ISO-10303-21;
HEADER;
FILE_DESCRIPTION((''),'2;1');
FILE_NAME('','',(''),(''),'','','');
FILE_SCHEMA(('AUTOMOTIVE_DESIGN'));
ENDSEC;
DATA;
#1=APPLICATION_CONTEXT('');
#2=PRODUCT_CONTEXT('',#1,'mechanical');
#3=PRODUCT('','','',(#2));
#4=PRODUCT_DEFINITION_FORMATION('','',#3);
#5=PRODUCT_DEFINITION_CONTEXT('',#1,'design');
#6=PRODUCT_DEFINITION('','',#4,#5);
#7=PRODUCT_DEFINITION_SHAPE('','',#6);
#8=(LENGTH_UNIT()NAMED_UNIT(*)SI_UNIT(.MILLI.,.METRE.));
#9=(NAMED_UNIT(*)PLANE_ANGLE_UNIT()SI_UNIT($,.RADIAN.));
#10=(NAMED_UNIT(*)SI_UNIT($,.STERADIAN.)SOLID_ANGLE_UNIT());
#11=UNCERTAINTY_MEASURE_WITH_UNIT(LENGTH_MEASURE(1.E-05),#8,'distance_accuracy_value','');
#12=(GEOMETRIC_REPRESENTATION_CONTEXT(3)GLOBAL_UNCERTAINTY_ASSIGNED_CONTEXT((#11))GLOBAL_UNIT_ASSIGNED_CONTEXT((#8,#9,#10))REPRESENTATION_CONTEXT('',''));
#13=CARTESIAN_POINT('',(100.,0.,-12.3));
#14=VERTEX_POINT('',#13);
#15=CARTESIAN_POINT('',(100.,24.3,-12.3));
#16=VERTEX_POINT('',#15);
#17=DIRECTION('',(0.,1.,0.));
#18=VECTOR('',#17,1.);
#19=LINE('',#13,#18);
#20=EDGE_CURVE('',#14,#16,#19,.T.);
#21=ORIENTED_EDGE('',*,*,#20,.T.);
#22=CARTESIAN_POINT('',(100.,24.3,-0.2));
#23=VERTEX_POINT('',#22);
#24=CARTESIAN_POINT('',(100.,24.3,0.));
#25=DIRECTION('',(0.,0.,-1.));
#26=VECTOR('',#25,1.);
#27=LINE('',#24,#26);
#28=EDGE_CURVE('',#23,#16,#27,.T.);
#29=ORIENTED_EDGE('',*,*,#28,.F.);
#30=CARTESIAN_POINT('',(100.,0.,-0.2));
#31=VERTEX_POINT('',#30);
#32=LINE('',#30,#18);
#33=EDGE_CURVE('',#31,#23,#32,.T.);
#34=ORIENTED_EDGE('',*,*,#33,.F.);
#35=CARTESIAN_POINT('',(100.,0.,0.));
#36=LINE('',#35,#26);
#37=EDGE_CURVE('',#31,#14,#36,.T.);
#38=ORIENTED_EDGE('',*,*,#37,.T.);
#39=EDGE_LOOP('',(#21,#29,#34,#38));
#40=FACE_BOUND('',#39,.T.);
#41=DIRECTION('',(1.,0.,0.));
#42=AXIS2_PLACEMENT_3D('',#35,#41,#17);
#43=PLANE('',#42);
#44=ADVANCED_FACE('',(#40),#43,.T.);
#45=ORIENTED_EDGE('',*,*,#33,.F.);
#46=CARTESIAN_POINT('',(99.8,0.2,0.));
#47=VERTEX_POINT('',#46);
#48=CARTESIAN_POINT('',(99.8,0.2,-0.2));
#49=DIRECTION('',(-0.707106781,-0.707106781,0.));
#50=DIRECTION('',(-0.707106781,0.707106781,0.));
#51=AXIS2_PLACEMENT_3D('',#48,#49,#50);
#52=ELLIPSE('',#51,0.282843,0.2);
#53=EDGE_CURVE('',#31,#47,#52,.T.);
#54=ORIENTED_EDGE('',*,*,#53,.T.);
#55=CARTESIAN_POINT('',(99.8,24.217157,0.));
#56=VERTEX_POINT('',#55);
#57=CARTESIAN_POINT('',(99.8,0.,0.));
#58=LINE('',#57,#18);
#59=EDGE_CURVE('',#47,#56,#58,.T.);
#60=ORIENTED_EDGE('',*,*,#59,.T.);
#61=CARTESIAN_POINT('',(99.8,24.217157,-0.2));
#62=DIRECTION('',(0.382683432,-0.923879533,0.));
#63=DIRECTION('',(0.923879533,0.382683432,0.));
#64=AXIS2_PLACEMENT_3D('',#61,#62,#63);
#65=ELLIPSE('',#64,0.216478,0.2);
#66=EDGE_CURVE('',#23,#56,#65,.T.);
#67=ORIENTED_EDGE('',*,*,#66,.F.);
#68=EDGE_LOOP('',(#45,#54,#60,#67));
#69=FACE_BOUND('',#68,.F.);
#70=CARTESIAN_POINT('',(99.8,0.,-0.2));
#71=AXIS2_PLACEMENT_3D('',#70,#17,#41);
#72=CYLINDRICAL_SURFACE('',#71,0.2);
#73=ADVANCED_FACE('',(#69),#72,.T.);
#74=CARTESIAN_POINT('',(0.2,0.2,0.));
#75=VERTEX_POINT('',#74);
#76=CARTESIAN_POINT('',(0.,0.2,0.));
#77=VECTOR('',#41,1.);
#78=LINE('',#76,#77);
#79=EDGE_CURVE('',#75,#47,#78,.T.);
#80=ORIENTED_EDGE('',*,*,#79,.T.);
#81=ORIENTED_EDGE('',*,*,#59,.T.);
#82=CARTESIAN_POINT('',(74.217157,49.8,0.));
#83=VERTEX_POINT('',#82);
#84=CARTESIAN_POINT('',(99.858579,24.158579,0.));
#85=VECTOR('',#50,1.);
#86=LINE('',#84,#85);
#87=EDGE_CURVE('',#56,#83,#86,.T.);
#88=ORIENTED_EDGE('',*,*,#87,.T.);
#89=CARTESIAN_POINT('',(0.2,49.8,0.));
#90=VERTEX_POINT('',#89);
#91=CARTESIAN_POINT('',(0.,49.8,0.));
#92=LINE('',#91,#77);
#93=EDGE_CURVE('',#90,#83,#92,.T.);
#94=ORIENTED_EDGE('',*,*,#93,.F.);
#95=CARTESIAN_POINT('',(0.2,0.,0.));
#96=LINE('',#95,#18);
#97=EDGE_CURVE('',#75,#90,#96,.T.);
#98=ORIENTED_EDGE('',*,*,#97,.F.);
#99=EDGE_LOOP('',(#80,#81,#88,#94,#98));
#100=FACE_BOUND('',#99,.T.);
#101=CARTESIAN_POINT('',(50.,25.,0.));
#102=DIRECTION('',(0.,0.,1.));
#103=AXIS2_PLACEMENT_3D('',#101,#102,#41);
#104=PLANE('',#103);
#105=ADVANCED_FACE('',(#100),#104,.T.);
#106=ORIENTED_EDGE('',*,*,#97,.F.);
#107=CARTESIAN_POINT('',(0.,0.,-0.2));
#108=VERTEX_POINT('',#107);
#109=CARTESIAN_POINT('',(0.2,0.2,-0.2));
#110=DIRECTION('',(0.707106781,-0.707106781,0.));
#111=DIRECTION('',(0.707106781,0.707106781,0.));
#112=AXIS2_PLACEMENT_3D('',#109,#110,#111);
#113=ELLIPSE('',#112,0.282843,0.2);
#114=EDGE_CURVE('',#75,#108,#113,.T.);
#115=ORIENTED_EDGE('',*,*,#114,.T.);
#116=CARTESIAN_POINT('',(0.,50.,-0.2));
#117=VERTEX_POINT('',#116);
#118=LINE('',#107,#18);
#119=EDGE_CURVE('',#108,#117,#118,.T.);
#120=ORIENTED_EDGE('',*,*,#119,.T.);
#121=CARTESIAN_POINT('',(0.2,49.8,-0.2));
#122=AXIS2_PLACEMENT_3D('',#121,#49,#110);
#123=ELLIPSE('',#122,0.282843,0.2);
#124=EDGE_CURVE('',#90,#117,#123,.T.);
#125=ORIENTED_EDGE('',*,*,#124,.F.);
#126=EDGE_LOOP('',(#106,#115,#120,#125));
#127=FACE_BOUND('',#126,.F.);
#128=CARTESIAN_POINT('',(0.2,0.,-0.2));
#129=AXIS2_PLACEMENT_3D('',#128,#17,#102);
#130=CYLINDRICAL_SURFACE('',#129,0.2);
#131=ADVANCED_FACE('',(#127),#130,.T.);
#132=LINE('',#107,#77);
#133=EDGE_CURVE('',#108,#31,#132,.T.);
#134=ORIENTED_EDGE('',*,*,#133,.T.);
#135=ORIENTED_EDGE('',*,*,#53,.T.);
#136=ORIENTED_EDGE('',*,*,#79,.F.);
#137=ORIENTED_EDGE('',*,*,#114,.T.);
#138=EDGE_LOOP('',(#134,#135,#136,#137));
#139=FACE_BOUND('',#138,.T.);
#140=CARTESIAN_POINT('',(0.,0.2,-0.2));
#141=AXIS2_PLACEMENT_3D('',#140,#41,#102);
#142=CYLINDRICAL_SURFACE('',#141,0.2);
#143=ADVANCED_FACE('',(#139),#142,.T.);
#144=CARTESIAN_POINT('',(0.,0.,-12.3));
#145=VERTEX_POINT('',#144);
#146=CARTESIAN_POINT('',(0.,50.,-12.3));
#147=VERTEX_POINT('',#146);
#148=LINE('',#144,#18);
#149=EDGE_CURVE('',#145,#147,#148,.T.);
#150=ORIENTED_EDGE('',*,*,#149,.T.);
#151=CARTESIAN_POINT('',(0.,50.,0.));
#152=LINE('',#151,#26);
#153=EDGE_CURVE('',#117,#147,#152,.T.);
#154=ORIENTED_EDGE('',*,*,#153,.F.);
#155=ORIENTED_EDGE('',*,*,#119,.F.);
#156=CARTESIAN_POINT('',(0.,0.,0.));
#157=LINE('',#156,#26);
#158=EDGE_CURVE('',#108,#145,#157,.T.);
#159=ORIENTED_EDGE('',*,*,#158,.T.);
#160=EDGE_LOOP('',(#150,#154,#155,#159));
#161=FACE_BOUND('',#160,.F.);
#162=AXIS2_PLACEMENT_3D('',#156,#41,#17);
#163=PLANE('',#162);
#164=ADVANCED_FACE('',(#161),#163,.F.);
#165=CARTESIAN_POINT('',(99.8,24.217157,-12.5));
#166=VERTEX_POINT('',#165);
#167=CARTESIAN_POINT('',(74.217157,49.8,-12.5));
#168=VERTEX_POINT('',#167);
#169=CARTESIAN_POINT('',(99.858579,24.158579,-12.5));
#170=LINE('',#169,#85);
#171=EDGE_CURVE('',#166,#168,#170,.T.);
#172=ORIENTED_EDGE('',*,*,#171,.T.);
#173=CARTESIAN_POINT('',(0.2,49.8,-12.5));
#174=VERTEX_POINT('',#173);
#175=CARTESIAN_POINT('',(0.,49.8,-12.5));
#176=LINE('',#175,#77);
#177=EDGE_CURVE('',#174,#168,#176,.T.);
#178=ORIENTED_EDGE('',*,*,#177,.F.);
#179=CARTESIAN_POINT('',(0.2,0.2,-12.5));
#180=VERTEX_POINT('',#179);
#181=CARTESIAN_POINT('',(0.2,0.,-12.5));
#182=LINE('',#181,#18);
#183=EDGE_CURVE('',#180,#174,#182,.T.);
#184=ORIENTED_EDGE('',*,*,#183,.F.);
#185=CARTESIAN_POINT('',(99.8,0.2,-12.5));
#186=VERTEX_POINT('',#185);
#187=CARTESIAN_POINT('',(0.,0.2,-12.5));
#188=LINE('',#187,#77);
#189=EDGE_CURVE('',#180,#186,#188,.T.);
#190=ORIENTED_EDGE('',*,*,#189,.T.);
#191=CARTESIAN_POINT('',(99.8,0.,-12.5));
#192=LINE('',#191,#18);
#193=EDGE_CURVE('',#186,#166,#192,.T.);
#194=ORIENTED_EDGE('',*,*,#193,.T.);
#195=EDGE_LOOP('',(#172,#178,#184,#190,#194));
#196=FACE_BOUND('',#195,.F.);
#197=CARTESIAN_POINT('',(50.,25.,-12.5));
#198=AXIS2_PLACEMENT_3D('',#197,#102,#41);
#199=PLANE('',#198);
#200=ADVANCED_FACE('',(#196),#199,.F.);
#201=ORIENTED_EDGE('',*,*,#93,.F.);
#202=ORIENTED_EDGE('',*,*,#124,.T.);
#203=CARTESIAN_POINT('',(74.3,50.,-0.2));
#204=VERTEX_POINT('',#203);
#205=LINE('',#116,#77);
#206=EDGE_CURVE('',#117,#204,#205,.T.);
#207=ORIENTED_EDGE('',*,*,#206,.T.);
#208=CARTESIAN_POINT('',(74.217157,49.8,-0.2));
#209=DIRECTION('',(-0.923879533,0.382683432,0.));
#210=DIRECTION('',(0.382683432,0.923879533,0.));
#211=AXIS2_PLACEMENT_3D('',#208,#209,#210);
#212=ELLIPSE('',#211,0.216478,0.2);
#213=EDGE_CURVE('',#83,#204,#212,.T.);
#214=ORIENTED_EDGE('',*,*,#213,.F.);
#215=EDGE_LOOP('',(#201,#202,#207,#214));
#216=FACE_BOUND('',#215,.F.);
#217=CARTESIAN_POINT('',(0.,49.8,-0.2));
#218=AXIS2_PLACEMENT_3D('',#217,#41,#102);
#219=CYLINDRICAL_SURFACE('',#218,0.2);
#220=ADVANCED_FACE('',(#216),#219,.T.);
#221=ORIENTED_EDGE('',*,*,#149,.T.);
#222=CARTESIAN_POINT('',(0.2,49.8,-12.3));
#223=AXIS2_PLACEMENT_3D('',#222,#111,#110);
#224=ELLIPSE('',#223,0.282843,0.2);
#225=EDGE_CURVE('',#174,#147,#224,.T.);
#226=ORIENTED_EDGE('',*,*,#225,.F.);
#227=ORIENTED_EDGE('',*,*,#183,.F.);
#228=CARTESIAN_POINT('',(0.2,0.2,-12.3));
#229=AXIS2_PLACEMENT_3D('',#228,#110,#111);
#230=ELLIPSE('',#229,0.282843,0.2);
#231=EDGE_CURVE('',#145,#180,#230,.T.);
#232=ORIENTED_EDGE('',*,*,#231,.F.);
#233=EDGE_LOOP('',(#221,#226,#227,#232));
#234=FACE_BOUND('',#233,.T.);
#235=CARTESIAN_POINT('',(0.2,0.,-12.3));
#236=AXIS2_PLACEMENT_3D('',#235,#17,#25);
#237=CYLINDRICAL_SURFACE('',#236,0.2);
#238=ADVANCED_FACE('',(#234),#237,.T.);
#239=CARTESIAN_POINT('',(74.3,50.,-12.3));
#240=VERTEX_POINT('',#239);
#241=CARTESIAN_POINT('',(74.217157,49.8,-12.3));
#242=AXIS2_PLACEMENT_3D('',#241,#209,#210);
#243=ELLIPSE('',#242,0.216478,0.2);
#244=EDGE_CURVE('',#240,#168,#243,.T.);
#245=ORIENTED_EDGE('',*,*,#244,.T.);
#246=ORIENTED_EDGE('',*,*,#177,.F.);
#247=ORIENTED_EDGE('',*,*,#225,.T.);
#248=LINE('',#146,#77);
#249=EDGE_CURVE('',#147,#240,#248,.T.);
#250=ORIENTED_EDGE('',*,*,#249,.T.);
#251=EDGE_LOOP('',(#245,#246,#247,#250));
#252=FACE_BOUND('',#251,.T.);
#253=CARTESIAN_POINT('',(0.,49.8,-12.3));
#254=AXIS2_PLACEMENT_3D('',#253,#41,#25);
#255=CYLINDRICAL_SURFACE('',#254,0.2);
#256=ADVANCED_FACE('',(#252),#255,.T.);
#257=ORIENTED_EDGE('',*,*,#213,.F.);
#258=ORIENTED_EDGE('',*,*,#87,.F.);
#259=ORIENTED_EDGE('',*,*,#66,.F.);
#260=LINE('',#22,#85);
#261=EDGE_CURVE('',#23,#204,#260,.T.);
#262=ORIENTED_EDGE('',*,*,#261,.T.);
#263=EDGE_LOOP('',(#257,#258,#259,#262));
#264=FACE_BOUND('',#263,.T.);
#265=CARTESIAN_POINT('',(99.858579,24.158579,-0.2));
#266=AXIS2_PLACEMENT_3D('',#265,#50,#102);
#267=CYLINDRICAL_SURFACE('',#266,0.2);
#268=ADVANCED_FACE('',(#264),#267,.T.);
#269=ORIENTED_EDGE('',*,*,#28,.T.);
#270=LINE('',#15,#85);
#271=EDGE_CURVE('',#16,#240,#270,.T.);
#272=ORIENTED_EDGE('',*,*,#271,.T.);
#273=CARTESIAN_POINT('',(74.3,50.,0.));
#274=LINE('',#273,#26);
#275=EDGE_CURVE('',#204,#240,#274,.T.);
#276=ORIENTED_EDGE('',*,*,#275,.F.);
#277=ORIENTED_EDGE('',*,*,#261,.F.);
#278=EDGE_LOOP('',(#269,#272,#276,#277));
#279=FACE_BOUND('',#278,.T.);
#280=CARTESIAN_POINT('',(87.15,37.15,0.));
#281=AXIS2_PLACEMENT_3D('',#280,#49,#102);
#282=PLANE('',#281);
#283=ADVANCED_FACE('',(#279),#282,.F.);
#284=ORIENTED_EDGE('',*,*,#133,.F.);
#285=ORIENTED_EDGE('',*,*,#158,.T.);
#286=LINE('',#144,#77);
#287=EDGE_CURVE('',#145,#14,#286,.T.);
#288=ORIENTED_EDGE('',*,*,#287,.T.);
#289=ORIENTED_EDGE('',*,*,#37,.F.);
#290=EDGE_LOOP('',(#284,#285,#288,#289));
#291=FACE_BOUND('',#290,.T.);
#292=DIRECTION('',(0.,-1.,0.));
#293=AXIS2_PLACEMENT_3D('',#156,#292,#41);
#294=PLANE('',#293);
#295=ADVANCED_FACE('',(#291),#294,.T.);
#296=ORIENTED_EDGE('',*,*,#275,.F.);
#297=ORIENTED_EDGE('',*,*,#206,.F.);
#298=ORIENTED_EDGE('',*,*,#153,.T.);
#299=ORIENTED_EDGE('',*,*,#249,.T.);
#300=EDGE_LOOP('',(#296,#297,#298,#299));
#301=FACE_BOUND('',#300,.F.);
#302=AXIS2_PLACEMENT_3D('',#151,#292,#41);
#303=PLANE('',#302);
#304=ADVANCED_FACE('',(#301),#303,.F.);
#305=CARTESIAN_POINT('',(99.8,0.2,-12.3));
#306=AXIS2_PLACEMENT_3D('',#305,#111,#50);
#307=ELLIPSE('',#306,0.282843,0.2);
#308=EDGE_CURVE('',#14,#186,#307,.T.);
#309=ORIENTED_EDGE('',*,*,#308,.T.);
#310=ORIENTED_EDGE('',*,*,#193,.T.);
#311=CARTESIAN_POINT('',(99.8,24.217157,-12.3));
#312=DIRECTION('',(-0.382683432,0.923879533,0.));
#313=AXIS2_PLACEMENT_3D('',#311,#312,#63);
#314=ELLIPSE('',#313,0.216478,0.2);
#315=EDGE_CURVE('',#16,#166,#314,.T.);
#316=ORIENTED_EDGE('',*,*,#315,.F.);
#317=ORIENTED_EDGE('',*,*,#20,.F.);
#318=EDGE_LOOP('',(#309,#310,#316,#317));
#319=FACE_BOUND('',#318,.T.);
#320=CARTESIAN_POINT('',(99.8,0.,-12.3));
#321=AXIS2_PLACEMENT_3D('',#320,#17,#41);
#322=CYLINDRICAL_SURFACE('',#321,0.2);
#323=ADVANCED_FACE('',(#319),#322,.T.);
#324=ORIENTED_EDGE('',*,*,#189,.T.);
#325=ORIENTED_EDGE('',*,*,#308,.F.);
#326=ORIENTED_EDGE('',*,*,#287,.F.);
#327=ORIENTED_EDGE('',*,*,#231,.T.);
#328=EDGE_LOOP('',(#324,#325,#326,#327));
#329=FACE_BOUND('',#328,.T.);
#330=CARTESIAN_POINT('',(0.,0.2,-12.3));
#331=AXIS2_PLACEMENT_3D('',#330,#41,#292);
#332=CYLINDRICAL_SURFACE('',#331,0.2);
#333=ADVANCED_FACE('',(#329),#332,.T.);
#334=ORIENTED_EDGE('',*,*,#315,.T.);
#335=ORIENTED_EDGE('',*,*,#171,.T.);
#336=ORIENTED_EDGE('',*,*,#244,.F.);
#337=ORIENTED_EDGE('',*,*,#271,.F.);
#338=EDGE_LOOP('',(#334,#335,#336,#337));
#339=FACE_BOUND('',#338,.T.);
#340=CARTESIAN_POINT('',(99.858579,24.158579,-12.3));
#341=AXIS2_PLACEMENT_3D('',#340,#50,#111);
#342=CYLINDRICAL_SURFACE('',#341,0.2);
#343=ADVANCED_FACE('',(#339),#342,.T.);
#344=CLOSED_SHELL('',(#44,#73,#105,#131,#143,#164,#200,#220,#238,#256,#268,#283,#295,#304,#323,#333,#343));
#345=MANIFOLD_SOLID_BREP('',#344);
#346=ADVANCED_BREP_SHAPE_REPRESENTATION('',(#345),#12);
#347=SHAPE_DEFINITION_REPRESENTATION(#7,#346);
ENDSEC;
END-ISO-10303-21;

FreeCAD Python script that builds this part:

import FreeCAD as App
import Part
import Sketcher


def edges_at(feature, points):
    """Names of the edges that pass closest to the given points."""
    edges = feature.Shape.Edges
    near = lambda p: min(range(len(edges)), key=lambda i: edges[i].distToShape(Part.Vertex(*p))[0])
    return sorted({f"Edge{near(p) + 1}" for p in points})


def add_polygon(sketch, points):
    """Adds a closed chain of lines whose ends are joined by coincident constraints."""
    first, n = sketch.GeometryCount, len(points)
    for a, b in zip(points, points[1:] + points[:1]):
        sketch.addGeometry(Part.LineSegment(App.Vector(*a, 0), App.Vector(*b, 0)), False)
    for i in range(n):
        sketch.addConstraint(Sketcher.Constraint("Coincident", first + i, 2, first + (i + 1) % n, 1))

doc = App.newDocument("Part")
body = doc.addObject("PartDesign::Body", "Body")

sketch1 = body.newObject("Sketcher::SketchObject", "Sketch")
sketch1.AttachmentSupport = (doc.getObject("XY_Plane"), [""])
sketch1.MapMode = "FlatFace"
add_polygon(sketch1, [(0, 50), (0, 0), (100, 0), (100, 50)])
sketch1.addConstraint([
    Sketcher.Constraint("Vertical", 0),
    Sketcher.Constraint("Horizontal", 1),
    Sketcher.Constraint("Vertical", 2),
    Sketcher.Constraint("Horizontal", 3),
    Sketcher.Constraint("Coincident", 0, 2, -1, 1),
    Sketcher.Constraint("DistanceX", 1, 1, 1, 2, 100.0),
    Sketcher.Constraint("DistanceY", 0, 2, 0, 1, 50.0),
])
pad1 = body.newObject("PartDesign::Pad", "Pad")
pad1.Profile = sketch1
pad1.Length = 12.5
pad1.Reversed = True
doc.recompute()

chamfer = body.newObject("PartDesign::Chamfer", "Chamfer")
chamfer.Base = (pad1, edges_at(pad1, [(100, 50, -6.25)]))
chamfer.Size = 25.7
doc.recompute()

fillet = body.newObject("PartDesign::Fillet", "Fillet")
fillet.Base = (chamfer, edges_at(chamfer, [
    (100, 12.15, 0),
    (87.15, 37.15, 0),
    (50, 0, 0),
    (37.15, 50, 0),
    (0, 25, 0),
    (100, 12.15, -12.5),
    (87.15, 37.15, -12.5),
    (50, 0, -12.5),
    (37.15, 50, -12.5),
    (0, 25, -12.5),
]))
fillet.Radius = 0.2

doc.recompute()
